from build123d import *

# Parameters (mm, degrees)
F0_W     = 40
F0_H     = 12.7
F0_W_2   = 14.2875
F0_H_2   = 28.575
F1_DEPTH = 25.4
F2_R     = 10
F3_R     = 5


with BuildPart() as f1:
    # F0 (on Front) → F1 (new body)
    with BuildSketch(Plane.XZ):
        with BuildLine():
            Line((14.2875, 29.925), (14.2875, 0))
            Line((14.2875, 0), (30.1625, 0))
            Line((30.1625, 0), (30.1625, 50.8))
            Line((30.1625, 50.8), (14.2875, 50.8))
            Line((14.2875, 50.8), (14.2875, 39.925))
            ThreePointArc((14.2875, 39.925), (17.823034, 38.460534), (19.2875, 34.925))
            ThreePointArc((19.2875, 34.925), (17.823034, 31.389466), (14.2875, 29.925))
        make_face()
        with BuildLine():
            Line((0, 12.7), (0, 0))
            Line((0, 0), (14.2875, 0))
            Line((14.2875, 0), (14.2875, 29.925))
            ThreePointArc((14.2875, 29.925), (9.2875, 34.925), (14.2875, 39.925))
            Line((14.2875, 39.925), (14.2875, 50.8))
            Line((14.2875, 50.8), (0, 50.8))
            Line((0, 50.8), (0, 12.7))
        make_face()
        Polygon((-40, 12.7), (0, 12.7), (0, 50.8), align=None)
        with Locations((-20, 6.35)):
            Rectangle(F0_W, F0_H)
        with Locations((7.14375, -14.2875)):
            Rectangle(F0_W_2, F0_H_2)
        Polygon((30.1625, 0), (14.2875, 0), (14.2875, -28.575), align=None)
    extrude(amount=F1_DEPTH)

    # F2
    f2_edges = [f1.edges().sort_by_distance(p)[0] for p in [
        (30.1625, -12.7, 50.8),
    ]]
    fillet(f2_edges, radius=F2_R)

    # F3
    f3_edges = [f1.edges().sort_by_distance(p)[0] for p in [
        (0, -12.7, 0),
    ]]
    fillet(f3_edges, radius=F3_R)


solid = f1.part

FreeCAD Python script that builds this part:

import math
import FreeCAD as App
import Part
import Sketcher
from FreeCAD import Vector
Q = App.Units.Quantity


def edges_at(feature, points):
    """Names of the edges that pass closest to the given points."""
    edges = feature.Shape.Edges
    near = lambda p: min(range(len(edges)), key=lambda i: edges[i].distToShape(Part.Vertex(*p))[0])
    return sorted({f"Edge{near(p) + 1}" for p in points})


def add_polygon(sketch, points):
    """Adds a closed chain of lines whose ends are joined by coincident constraints."""
    first, n = sketch.GeometryCount, len(points)
    for a, b in zip(points, points[1:] + points[:1]):
        sketch.addGeometry(Part.LineSegment(App.Vector(*a, 0), App.Vector(*b, 0)), False)
    for i in range(n):
        sketch.addConstraint(Sketcher.Constraint("Coincident", first + i, 2, first + (i + 1) % n, 1))

doc = App.newDocument("Part")
body = doc.addObject("PartDesign::Body", "Body")

sketch1 = doc.addObject("Sketcher::SketchObject", "Sketch")
body.addObject(sketch1)
sketch1.AttachmentSupport = (doc.XZ_Plane, [""])
sketch1.MapMode = "FlatFace"
add_polygon(sketch1, [(30.2, 0), (30.2, 50.8), (0, 50.8), (-40, 12.7), (-40, 0), (0, 0), (0, -28.6), (14.3, -28.6)])
sketch1.addGeometry(Part.ArcOfCircle(Part.Circle(Vector(14.3, 34.9, 0), Vector(0, 0, 1), 5), math.radians(0), math.radians(90)), False)
sketch1.addGeometry(Part.ArcOfCircle(Part.Circle(Vector(14.3, 34.9, 0), Vector(0, 0, 1), 5), math.radians(-90), math.radians(0)), False)
sketch1.addGeometry(Part.ArcOfCircle(Part.Circle(Vector(14.3, 34.9, 0), Vector(0, 0, 1), 5), math.radians(90), math.radians(270)), False)
sketch1.addConstraint(Sketcher.Constraint("Tangent", 8, 1, 9, 2))
sketch1.addConstraint(Sketcher.Constraint("Tangent", 9, 1, 10, 2))
sketch1.addConstraint(Sketcher.Constraint("Tangent", 10, 1, 8, 2))
sketch1.addConstraint(Sketcher.Constraint("Vertical", 0))
sketch1.addConstraint(Sketcher.Constraint("Horizontal", 1))
sketch1.addConstraint(Sketcher.Constraint("Vertical", 3))
sketch1.addConstraint(Sketcher.Constraint("Horizontal", 4))
sketch1.addConstraint(Sketcher.Constraint("Vertical", 5))
sketch1.addConstraint(Sketcher.Constraint("Horizontal", 6))
sketch1.addConstraint(Sketcher.Constraint("Coincident", 4, 2, -1, 1))
sketch1.addConstraint(Sketcher.Constraint("PointOnObject", 1, 2, -2))
sketch1.addConstraint(Sketcher.Constraint("PointOnObject", 7, 2, -1))
sketch1.addConstraint(Sketcher.Constraint("Horizontal", 10, 3, 8, 1))
sketch1.addConstraint(Sketcher.Constraint("Vertical", 10, 3, 6, 2))
sketch1.addConstraint(Sketcher.Constraint("Vertical", 6, 2, 9, 1))
sketch1.addConstraint(Sketcher.Constraint("Vertical", 9, 1, 10, 1))
sketch1.addConstraint(Sketcher.Constraint("DistanceY", 0, 1, 0, 2, Q("2 in")))
sketch1.addConstraint(Sketcher.Constraint("DistanceY", 3, 2, 3, 1, Q("0.5 in")))
sketch1.addConstraint(Sketcher.Constraint("DistanceY", 5, 2, 9, 3, Q("2.5 in")))
sketch1.addConstraint(Sketcher.Constraint("DistanceX", 1, 2, 1, 1, Q("1.1875 in")))
sketch1.addConstraint(Sketcher.Constraint("DistanceX", 6, 1, 6, 2, Q("0.5625 in")))
sketch1.addConstraint(Sketcher.Constraint("DistanceY", 5, 2, 5, 1, Q("1.125 in")))
sketch1.addConstraint(Sketcher.Constraint("Radius", 8, 5.0))
sketch1.addConstraint(Sketcher.Constraint("DistanceX", 4, 1, 4, 2, 40.0))
pad1 = doc.addObject("PartDesign::Pad", "Pad")
body.addObject(pad1)
pad1.Profile = sketch1
pad1.Length = Q("1 in")
doc.recompute()

fillet = doc.addObject("PartDesign::Fillet", "Fillet")
body.addObject(fillet)
fillet.Base = (pad1, edges_at(pad1, [(30.163, -12.7, 50.8)]))
fillet.Radius = 10
doc.recompute()

fillet2 = doc.addObject("PartDesign::Fillet", "Fillet001")
body.addObject(fillet2)
fillet2.Base = (fillet, edges_at(fillet, [(0, -12.7, 0)]))
fillet2.Radius = 5

doc.recompute()
